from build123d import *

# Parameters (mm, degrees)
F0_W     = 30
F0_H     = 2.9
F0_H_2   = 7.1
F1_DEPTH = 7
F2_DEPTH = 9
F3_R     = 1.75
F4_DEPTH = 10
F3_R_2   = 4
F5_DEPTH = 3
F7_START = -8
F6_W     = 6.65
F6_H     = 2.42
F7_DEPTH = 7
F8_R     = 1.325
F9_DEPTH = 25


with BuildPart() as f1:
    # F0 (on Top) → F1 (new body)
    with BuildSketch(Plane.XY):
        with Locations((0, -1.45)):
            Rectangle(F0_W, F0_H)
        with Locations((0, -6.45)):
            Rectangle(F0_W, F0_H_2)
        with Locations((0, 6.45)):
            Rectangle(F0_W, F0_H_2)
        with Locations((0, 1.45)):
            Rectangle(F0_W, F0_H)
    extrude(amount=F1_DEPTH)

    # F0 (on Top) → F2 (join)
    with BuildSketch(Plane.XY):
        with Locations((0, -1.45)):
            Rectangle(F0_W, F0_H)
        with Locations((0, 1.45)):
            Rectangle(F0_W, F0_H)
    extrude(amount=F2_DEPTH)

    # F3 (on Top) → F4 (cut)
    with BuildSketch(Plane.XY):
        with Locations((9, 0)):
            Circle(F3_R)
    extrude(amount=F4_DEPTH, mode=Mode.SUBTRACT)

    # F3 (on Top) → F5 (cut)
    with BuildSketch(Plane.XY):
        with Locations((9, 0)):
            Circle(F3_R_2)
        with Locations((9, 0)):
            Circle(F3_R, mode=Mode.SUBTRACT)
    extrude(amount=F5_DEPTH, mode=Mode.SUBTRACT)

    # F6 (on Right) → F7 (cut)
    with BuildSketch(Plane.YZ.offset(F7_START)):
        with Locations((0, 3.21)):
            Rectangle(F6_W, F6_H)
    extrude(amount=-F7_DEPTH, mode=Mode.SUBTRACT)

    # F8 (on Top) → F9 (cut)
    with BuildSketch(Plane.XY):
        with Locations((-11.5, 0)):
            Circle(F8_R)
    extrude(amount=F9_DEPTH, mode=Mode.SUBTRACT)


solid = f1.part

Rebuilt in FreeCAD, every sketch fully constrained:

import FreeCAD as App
import Part
import Sketcher

V = App.Vector

doc = App.newDocument("Part")
body = doc.addObject("PartDesign::Body", "Body")

# Sketch on XY plane
sketch1 = doc.addObject("Sketcher::SketchObject", "Sketch")
body.addObject(sketch1)
sketch1.AttachmentSupport = (doc.XY_Plane, [""])
sketch1.MapMode = "FlatFace"
sketch1.addGeometry(Part.LineSegment(V(-15, -10, 0), V(15, -10, 0)), False)
sketch1.addGeometry(Part.LineSegment(V(15, -10, 0), V(15, 10, 0)), False)
sketch1.addGeometry(Part.LineSegment(V(15, 10, 0), V(-15, 10, 0)), False)
sketch1.addGeometry(Part.LineSegment(V(-15, 10, 0), V(-15, -10, 0)), False)
sketch1.addConstraint(Sketcher.Constraint("Coincident", 0, 2, 1, 1))
sketch1.addConstraint(Sketcher.Constraint("Coincident", 1, 2, 2, 1))
sketch1.addConstraint(Sketcher.Constraint("Coincident", 2, 2, 3, 1))
sketch1.addConstraint(Sketcher.Constraint("Coincident", 3, 2, 0, 1))
sketch1.addConstraint(Sketcher.Constraint("Horizontal", 0))
sketch1.addConstraint(Sketcher.Constraint("Vertical", 1))
sketch1.addConstraint(Sketcher.Constraint("Horizontal", 2))
sketch1.addConstraint(Sketcher.Constraint("Vertical", 3))
sketch1.addConstraint(Sketcher.Constraint("Symmetric", 0, 2, 2, 2, -1, 1))
sketch1.addConstraint(Sketcher.Constraint("DistanceX", 0, 1, 0, 2, 30.0))
sketch1.addConstraint(Sketcher.Constraint("DistanceY", 1, 1, 1, 2, 20.0))
pad1 = doc.addObject("PartDesign::Pad", "Pad")
body.addObject(pad1)
pad1.Profile = sketch1
pad1.Length = 7

# Sketch on XY plane
sketch2 = doc.addObject("Sketcher::SketchObject", "Sketch001")
body.addObject(sketch2)
sketch2.AttachmentSupport = (doc.XY_Plane, [""])
sketch2.MapMode = "FlatFace"
sketch2.addGeometry(Part.LineSegment(V(-15, -3, 0), V(15, -3, 0)), False)
sketch2.addGeometry(Part.LineSegment(V(15, -3, 0), V(15, 3, 0)), False)
sketch2.addGeometry(Part.LineSegment(V(15, 3, 0), V(-15, 3, 0)), False)
sketch2.addGeometry(Part.LineSegment(V(-15, 3, 0), V(-15, -3, 0)), False)
sketch2.addConstraint(Sketcher.Constraint("Coincident", 0, 2, 1, 1))
sketch2.addConstraint(Sketcher.Constraint("Coincident", 1, 2, 2, 1))
sketch2.addConstraint(Sketcher.Constraint("Coincident", 2, 2, 3, 1))
sketch2.addConstraint(Sketcher.Constraint("Coincident", 3, 2, 0, 1))
sketch2.addConstraint(Sketcher.Constraint("Horizontal", 0))
sketch2.addConstraint(Sketcher.Constraint("Vertical", 1))
sketch2.addConstraint(Sketcher.Constraint("Horizontal", 2))
sketch2.addConstraint(Sketcher.Constraint("Vertical", 3))
sketch2.addConstraint(Sketcher.Constraint("Symmetric", 0, 2, 2, 2, -1, 1))
sketch2.addConstraint(Sketcher.Constraint("DistanceX", 0, 1, 0, 2, 30.0))
sketch2.addConstraint(Sketcher.Constraint("DistanceY", 1, 1, 1, 2, 5.8))
pad2 = doc.addObject("PartDesign::Pad", "Pad001")
body.addObject(pad2)
pad2.Profile = sketch2
pad2.Length = 9

# Sketch on XY plane
sketch3 = doc.addObject("Sketcher::SketchObject", "Sketch002")
body.addObject(sketch3)
sketch3.AttachmentSupport = (doc.XY_Plane, [""])
sketch3.MapMode = "FlatFace"
sketch3.addGeometry(Part.Circle(V(9, 0, 0), V(0, 0, 1), 1.8), False)
sketch3.addConstraint(Sketcher.Constraint("PointOnObject", 0, 3, -1))
sketch3.addConstraint(Sketcher.Constraint("Diameter", 0, 3.5))
sketch3.addConstraint(Sketcher.Constraint("DistanceX", -1, 1, 0, 3, 9.0))
pocket1 = doc.addObject("PartDesign::Pocket", "Pocket")
body.addObject(pocket1)
pocket1.Profile = sketch3
pocket1.Length = 10
pocket1.Reversed = True

# Sketch on XY plane
sketch4 = doc.addObject("Sketcher::SketchObject", "Sketch003")
body.addObject(sketch4)
sketch4.AttachmentSupport = (doc.XY_Plane, [""])
sketch4.MapMode = "FlatFace"
sketch4.addGeometry(Part.Circle(V(9, 0, 0), V(0, 0, 1), 4), False)
sketch4.addGeometry(Part.Circle(V(9, 0, 0), V(0, 0, 1), 1.8), False)
sketch4.addConstraint(Sketcher.Constraint("Coincident", 1, 3, 0, 3))
sketch4.addConstraint(Sketcher.Constraint("PointOnObject", 0, 3, -1))
sketch4.addConstraint(Sketcher.Constraint("Diameter", 0, 8.0))
sketch4.addConstraint(Sketcher.Constraint("Diameter", 1, 3.5))
sketch4.addConstraint(Sketcher.Constraint("DistanceX", -1, 1, 0, 3, 9.0))
pocket2 = doc.addObject("PartDesign::Pocket", "Pocket001")
body.addObject(pocket2)
pocket2.Profile = sketch4
pocket2.Length = 3
pocket2.Reversed = True

# Sketch on YZ plane
sketch5 = doc.addObject("Sketcher::SketchObject", "Sketch004")
body.addObject(sketch5)
sketch5.AttachmentSupport = (doc.YZ_Plane, [""])
sketch5.MapMode = "FlatFace"
sketch5.AttachmentOffset = App.Placement(V(0, 0, -8), App.Rotation())
sketch5.addGeometry(Part.LineSegment(V(-3.3, 4.4, 0), V(-3.3, 2, 0)), False)
sketch5.addGeometry(Part.LineSegment(V(-3.3, 2, 0), V(3.3, 2, 0)), False)
sketch5.addGeometry(Part.LineSegment(V(3.3, 2, 0), V(3.3, 4.4, 0)), False)
sketch5.addGeometry(Part.LineSegment(V(3.3, 4.4, 0), V(-3.3, 4.4, 0)), False)
sketch5.addConstraint(Sketcher.Constraint("Coincident", 0, 2, 1, 1))
sketch5.addConstraint(Sketcher.Constraint("Coincident", 1, 2, 2, 1))
sketch5.addConstraint(Sketcher.Constraint("Coincident", 2, 2, 3, 1))
sketch5.addConstraint(Sketcher.Constraint("Coincident", 3, 2, 0, 1))
sketch5.addConstraint(Sketcher.Constraint("Vertical", 0))
sketch5.addConstraint(Sketcher.Constraint("Horizontal", 1))
sketch5.addConstraint(Sketcher.Constraint("Vertical", 2))
sketch5.addConstraint(Sketcher.Constraint("Horizontal", 3))
sketch5.addConstraint(Sketcher.Constraint("DistanceY", -1, 1, 0, 2, 2.0))
sketch5.addConstraint(Sketcher.Constraint("DistanceX", 1, 1, 1, 2, 6.65))
sketch5.addConstraint(Sketcher.Constraint("DistanceY", 0, 2, 0, 1, 2.42))
sketch5.addConstraint(Sketcher.Constraint("DistanceX", 0, 2, -1, 1, 3.325))
pocket3 = doc.addObject("PartDesign::Pocket", "Pocket002")
body.addObject(pocket3)
pocket3.Profile = sketch5
pocket3.Length = 7

# Sketch on XY plane
sketch6 = doc.addObject("Sketcher::SketchObject", "Sketch005")
body.addObject(sketch6)
sketch6.AttachmentSupport = (doc.XY_Plane, [""])
sketch6.MapMode = "FlatFace"
sketch6.addGeometry(Part.Circle(V(-11.5, 0, 0), V(0, 0, 1), 1.3), False)
sketch6.addConstraint(Sketcher.Constraint("PointOnObject", 0, 3, -1))
sketch6.addConstraint(Sketcher.Constraint("Diameter", 0, 2.65))
sketch6.addConstraint(Sketcher.Constraint("DistanceX", 0, 3, -1, 1, 11.5))
pocket4 = doc.addObject("PartDesign::Pocket", "Pocket003")
body.addObject(pocket4)
pocket4.Profile = sketch6
pocket4.Length = 25
pocket4.Reversed = True

doc.recompute()
